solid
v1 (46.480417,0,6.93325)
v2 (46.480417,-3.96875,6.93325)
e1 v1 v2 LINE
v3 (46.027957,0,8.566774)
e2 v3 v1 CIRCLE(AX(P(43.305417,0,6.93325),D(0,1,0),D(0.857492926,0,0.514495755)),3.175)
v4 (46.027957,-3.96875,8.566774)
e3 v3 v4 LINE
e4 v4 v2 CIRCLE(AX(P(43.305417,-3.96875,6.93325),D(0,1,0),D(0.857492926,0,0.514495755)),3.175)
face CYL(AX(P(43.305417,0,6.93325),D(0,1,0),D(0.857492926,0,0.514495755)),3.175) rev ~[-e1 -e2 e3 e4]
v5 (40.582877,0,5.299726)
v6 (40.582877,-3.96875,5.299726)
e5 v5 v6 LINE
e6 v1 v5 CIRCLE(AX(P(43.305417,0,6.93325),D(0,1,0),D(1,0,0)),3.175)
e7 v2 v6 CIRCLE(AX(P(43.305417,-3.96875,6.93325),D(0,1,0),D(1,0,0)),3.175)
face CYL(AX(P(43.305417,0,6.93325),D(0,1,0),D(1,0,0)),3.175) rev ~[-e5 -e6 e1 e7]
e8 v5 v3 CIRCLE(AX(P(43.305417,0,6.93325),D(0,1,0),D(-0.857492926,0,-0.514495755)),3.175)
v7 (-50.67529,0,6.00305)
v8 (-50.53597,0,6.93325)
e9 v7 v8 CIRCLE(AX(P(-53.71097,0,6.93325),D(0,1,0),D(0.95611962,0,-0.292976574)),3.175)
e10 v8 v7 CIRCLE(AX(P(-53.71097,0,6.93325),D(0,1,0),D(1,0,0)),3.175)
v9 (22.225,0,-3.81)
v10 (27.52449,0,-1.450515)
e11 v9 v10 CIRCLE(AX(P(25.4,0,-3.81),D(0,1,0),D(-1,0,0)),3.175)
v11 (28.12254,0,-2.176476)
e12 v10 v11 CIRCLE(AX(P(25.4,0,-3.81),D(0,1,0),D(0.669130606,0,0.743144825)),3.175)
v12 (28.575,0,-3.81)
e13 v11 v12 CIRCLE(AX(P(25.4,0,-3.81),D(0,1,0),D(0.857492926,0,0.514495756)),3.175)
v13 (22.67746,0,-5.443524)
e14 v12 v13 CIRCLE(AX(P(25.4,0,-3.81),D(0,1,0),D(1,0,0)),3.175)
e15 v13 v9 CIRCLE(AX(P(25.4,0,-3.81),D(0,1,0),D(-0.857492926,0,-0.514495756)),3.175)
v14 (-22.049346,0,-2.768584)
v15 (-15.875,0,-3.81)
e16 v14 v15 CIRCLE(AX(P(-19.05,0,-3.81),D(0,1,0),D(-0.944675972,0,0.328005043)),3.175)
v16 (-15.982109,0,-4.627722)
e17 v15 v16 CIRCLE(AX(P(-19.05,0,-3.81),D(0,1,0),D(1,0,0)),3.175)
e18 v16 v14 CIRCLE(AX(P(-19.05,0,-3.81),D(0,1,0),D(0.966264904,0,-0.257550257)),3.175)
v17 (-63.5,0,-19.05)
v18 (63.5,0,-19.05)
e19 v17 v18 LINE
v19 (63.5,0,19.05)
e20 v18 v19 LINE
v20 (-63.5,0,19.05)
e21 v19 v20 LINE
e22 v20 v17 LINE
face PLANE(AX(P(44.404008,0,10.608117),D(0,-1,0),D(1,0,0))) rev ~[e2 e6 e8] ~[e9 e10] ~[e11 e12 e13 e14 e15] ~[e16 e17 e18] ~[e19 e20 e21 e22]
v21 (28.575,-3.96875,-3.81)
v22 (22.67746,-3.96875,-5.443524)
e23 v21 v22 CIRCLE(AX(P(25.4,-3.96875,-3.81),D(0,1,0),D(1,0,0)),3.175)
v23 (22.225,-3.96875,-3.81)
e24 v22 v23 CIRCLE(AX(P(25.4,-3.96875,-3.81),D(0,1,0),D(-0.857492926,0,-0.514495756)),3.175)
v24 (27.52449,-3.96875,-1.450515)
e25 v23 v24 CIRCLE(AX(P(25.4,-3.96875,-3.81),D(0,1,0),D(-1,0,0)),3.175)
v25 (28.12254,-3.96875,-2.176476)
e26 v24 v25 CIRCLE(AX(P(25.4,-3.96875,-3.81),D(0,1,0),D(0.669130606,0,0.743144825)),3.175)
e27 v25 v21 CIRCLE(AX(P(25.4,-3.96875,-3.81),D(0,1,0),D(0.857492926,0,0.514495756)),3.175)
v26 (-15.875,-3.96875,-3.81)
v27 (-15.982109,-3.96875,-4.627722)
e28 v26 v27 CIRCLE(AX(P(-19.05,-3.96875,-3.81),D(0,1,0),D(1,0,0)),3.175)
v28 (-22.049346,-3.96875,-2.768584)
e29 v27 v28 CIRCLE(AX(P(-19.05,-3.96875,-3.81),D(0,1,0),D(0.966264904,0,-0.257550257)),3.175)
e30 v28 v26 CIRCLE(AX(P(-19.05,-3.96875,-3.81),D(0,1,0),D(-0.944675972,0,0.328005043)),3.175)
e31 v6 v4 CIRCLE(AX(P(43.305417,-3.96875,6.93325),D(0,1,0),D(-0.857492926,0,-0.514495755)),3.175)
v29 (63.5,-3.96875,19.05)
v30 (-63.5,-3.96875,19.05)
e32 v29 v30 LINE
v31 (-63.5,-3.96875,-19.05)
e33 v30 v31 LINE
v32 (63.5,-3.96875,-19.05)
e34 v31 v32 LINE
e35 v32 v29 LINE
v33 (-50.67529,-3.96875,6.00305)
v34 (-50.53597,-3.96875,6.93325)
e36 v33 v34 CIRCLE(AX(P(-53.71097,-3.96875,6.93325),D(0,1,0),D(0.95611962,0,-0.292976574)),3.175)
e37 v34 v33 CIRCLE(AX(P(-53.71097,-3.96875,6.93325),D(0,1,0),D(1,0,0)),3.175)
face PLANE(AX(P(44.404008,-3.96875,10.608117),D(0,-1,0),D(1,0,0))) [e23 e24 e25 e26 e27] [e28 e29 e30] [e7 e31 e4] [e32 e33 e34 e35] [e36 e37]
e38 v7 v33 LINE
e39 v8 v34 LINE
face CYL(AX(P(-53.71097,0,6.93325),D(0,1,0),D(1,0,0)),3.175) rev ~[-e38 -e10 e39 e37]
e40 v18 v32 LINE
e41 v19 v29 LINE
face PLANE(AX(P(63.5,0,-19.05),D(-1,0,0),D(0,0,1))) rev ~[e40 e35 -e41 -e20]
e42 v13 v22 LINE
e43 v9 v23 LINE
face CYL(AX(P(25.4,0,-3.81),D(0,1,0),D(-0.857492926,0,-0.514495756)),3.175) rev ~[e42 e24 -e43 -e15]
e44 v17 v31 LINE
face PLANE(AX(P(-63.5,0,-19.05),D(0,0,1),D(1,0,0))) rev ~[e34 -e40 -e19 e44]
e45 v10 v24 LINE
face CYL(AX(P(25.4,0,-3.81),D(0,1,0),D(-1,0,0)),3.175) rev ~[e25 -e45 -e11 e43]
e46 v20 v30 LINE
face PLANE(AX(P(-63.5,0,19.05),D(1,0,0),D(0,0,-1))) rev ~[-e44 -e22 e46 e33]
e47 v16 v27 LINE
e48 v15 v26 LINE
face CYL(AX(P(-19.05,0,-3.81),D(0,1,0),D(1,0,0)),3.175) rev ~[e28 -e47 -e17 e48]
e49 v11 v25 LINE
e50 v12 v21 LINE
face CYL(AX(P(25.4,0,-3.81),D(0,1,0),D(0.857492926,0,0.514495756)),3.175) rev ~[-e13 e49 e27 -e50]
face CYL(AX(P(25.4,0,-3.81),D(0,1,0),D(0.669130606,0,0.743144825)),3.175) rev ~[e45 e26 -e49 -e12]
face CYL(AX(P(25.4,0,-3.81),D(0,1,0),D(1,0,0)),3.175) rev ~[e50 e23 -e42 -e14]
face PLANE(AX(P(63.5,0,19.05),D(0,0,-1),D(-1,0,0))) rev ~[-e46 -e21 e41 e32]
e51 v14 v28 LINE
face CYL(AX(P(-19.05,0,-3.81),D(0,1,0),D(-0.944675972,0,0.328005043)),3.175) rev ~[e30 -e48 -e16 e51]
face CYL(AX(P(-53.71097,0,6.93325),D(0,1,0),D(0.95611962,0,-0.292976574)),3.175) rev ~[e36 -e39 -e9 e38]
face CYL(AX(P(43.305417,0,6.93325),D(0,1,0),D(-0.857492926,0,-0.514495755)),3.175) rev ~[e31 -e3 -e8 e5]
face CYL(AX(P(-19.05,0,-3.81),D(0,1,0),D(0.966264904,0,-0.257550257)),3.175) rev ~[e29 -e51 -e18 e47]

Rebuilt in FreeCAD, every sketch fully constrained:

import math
import FreeCAD as App
import Part
import Sketcher

V = App.Vector
Q = App.Units.Quantity


def add_polygon(sketch, points):
    """Adds a closed chain of lines whose ends are joined by coincident constraints."""
    first, n = sketch.GeometryCount, len(points)
    for a, b in zip(points, points[1:] + points[:1]):
        sketch.addGeometry(Part.LineSegment(App.Vector(*a, 0), App.Vector(*b, 0)), False)
    for i in range(n):
        sketch.addConstraint(Sketcher.Constraint("Coincident", first + i, 2, first + (i + 1) % n, 1))

doc = App.newDocument("Part")
body = doc.addObject("PartDesign::Body", "Body")

# Sketch on XZ plane
sketch1 = body.newObject("Sketcher::SketchObject", "Sketch")
sketch1.AttachmentSupport = (doc.getObject("XZ_Plane"), [""])
sketch1.MapMode = "FlatFace"
add_polygon(sketch1, [(-63.5, -19.1), (63.5, -19.1), (63.5, 19.1), (-63.5, 19.1)])  # lines 0-3
sketch1.addGeometry(Part.ArcOfCircle(Part.Circle(V(-19.1, -3.8, 0), V(0, 0, 1), 3.2), math.radians(161), math.radians(345)), False)  # 4
sketch1.addGeometry(Part.ArcOfCircle(Part.Circle(V(-19.1, -3.8, 0), V(0, 0, 1), 3.2), math.radians(0), math.radians(161)), False)  # 5
sketch1.addGeometry(Part.ArcOfCircle(Part.Circle(V(-19.1, -3.8, 0), V(0, 0, 1), 3.2), math.radians(-14.92), math.radians(0)), False)  # 6
sketch1.addGeometry(Part.ArcOfCircle(Part.Circle(V(25.4, -3.8, 0), V(0, 0, 1), 3.2), math.radians(48), math.radians(180)), False)  # 7
sketch1.addGeometry(Part.ArcOfCircle(Part.Circle(V(25.4, -3.8, 0), V(0, 0, 1), 3.2), math.radians(30.96), math.radians(48)), False)  # 8
sketch1.addGeometry(Part.ArcOfCircle(Part.Circle(V(25.4, -3.8, 0), V(0, 0, 1), 3.2), math.radians(0), math.radians(31)), False)  # 9
sketch1.addGeometry(Part.ArcOfCircle(Part.Circle(V(25.4, -3.8, 0), V(0, 0, 1), 3.2), math.radians(-149), math.radians(0)), False)  # 10
sketch1.addGeometry(Part.ArcOfCircle(Part.Circle(V(25.4, -3.8, 0), V(0, 0, 1), 3.2), math.radians(180), math.radians(211)), False)  # 11
sketch1.addGeometry(Part.ArcOfCircle(Part.Circle(V(-53.7, 6.9, 0), V(0, 0, 1), 3.2), math.radians(0), math.radians(343)), False)  # 12
sketch1.addGeometry(Part.ArcOfCircle(Part.Circle(V(-53.7, 6.9, 0), V(0, 0, 1), 3.2), math.radians(-17.04), math.radians(0)), False)  # 13
sketch1.addGeometry(Part.ArcOfCircle(Part.Circle(V(43.3, 6.9, 0), V(0, 0, 1), 3.2), math.radians(31), math.radians(211)), False)  # 14
sketch1.addGeometry(Part.ArcOfCircle(Part.Circle(V(43.3, 6.9, 0), V(0, 0, 1), 3.2), math.radians(0), math.radians(31)), False)  # 15
sketch1.addGeometry(Part.ArcOfCircle(Part.Circle(V(43.3, 6.9, 0), V(0, 0, 1), 3.2), math.radians(-149), math.radians(0)), False)  # 16
sketch1.addConstraint(Sketcher.Constraint("Tangent", 4, 1, 5, 2))
sketch1.addConstraint(Sketcher.Constraint("Tangent", 5, 1, 6, 2))
sketch1.addConstraint(Sketcher.Constraint("Tangent", 6, 1, 4, 2))
sketch1.addConstraint(Sketcher.Constraint("Tangent", 7, 1, 8, 2))
sketch1.addConstraint(Sketcher.Constraint("Tangent", 8, 1, 9, 2))
sketch1.addConstraint(Sketcher.Constraint("Tangent", 9, 1, 10, 2))
sketch1.addConstraint(Sketcher.Constraint("Tangent", 10, 1, 11, 2))
sketch1.addConstraint(Sketcher.Constraint("Tangent", 11, 1, 7, 2))
sketch1.addConstraint(Sketcher.Constraint("Tangent", 12, 1, 13, 2))
sketch1.addConstraint(Sketcher.Constraint("Coincident", 13, 1, 12, 2))
sketch1.addConstraint(Sketcher.Constraint("Tangent", 14, 1, 15, 2))
sketch1.addConstraint(Sketcher.Constraint("Tangent", 15, 1, 16, 2))
sketch1.addConstraint(Sketcher.Constraint("Tangent", 16, 1, 14, 2))
sketch1.addConstraint(Sketcher.Constraint("Horizontal", 0))
sketch1.addConstraint(Sketcher.Constraint("Vertical", 1))
sketch1.addConstraint(Sketcher.Constraint("Horizontal", 2))
sketch1.addConstraint(Sketcher.Constraint("Vertical", 3))
sketch1.addConstraint(Sketcher.Constraint("Coincident", 9, 3, 7, 3))
sketch1.addConstraint(Sketcher.Constraint("Equal", 6, 7))
sketch1.addConstraint(Sketcher.Constraint("Equal", 11, 12))
sketch1.addConstraint(Sketcher.Constraint("Equal", 13, 14))
sketch1.addConstraint(Sketcher.Constraint("Symmetric", 0, 2, 2, 2, -1, 1))
sketch1.addConstraint(Sketcher.Constraint("Horizontal", 6, 3, 7, 3))
sketch1.addConstraint(Sketcher.Constraint("Horizontal", 13, 3, 14, 3))
sketch1.addConstraint(Sketcher.Constraint("Horizontal", 11, 3, 5, 1))
sketch1.addConstraint(Sketcher.Constraint("Horizontal", 5, 1, 9, 1))
sketch1.addConstraint(Sketcher.Constraint("Horizontal", 9, 1, 11, 1))
sketch1.addConstraint(Sketcher.Constraint("Horizontal", 16, 3, 12, 1))
sketch1.addConstraint(Sketcher.Constraint("Horizontal", 12, 1, 15, 1))
sketch1.addConstraint(Sketcher.Constraint("DistanceX", 0, 1, 0, 2, Q("5 in")))
sketch1.addConstraint(Sketcher.Constraint("DistanceY", 1, 1, 1, 2, Q("1.5 in")))
sketch1.addConstraint(Sketcher.Constraint("DistanceX", -1, 1, 7, 3, Q("1 in")))
sketch1.addConstraint(Sketcher.Constraint("Radius", 4, Q("0.125 in")))
sketch1.addConstraint(Sketcher.Constraint("DistanceY", 0, 2, 9, 3, Q("0.6 in")))
sketch1.addConstraint(Sketcher.Constraint("DistanceX", 4, 3, -1, 1, Q("0.75 in")))
sketch1.addConstraint(Sketcher.Constraint("DistanceY", 13, 1, 12, 1, 0.930201))
sketch1.addConstraint(Sketcher.Constraint("DistanceX", 12, 3, -1, 1, 53.71097))
sketch1.addConstraint(Sketcher.Constraint("DistanceY", -1, 1, 12, 3, 6.93325))
sketch1.addConstraint(Sketcher.Constraint("DistanceX", 6, 1, -1, 1, 15.982109))
sketch1.addConstraint(Sketcher.Constraint("DistanceX", -1, 1, 7, 1, 27.52449))
sketch1.addConstraint(Sketcher.Constraint("DistanceX", -1, 1, 8, 1, 28.12254))
sketch1.addConstraint(Sketcher.Constraint("DistanceX", -1, 1, 10, 1, 22.67746))
sketch1.addConstraint(Sketcher.Constraint("DistanceY", 6, 1, 4, 1, 1.859138))
sketch1.addConstraint(Sketcher.Constraint("DistanceX", 14, 3, 14, 1, 2.72254))
sketch1.addConstraint(Sketcher.Constraint("DistanceX", 16, 1, 14, 3, 2.72254))
sketch1.addConstraint(Sketcher.Constraint("DistanceX", -1, 1, 14, 3, 43.305417))
pad1 = body.newObject("PartDesign::Pad", "Pad")
pad1.Profile = sketch1
pad1.Length = Q("0.15625 in")

doc.recompute()
